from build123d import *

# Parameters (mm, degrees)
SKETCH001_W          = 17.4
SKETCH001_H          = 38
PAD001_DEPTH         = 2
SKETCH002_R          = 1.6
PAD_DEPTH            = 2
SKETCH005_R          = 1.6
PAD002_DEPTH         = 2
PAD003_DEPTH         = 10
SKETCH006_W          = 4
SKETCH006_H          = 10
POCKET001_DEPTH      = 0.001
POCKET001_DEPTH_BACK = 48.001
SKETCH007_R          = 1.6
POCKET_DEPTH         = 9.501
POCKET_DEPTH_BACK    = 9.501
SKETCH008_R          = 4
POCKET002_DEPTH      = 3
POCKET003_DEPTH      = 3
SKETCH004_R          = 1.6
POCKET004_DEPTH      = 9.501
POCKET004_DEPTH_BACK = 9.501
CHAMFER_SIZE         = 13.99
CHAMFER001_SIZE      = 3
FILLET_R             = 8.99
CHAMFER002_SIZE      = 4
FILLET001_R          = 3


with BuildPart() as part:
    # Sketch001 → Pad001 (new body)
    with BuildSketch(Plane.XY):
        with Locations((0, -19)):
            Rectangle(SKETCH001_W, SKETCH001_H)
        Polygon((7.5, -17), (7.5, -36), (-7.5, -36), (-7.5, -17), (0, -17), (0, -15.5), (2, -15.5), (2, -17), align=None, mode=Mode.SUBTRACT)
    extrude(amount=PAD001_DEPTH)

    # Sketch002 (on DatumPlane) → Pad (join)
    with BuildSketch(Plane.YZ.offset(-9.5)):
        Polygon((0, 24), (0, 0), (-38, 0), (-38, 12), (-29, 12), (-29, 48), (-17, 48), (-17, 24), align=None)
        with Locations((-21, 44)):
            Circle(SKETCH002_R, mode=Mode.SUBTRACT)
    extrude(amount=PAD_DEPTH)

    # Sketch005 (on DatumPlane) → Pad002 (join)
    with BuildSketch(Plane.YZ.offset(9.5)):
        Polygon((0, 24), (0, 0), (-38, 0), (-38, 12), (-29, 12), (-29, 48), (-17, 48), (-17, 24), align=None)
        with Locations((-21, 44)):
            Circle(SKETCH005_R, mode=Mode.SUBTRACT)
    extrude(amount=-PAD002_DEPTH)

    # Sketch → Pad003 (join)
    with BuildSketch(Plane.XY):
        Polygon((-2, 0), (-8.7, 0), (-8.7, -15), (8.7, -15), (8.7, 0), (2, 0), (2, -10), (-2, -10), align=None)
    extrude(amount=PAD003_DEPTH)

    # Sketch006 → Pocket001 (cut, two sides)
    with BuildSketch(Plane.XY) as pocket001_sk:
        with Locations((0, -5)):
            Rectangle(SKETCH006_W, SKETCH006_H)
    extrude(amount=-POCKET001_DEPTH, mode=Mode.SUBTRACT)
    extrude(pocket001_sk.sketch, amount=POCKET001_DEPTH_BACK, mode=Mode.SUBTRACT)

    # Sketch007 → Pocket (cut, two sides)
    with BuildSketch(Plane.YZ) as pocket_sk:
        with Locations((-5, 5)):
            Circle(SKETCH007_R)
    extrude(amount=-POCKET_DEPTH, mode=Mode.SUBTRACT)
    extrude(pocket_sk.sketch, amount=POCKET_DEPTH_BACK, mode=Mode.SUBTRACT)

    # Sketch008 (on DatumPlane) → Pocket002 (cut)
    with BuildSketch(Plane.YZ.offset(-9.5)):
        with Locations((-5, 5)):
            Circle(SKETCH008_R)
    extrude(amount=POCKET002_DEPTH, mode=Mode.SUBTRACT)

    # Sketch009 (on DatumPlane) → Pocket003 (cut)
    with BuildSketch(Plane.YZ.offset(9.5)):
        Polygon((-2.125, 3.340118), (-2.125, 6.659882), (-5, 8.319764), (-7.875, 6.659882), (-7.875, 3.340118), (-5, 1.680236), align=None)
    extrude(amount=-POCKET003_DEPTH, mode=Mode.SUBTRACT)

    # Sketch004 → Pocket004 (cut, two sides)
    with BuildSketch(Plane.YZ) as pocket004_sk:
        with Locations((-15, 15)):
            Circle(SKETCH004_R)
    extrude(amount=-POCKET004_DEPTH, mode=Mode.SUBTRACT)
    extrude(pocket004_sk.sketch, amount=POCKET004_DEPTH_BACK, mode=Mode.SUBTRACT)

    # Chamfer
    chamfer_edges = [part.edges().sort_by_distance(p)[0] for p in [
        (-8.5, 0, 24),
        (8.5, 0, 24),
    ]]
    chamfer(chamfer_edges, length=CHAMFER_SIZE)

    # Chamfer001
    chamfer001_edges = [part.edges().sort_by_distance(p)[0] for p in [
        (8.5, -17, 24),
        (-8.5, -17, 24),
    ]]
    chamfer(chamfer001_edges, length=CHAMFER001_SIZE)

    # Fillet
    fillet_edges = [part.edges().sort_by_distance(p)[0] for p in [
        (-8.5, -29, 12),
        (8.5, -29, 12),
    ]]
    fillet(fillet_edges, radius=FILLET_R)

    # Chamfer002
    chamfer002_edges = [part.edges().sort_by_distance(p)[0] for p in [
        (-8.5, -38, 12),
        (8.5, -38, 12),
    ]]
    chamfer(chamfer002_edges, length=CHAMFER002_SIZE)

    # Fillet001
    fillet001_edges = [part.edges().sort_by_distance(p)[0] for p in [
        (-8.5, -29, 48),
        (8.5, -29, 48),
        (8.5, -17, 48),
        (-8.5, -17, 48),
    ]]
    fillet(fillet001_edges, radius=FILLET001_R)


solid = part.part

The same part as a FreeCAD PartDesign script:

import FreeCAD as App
import Part
import Sketcher

V = App.Vector
Q = App.Units.Quantity


def edges_at(feature, points):
    """Names of the edges that pass closest to the given points."""
    edges = feature.Shape.Edges
    near = lambda p: min(range(len(edges)), key=lambda i: edges[i].distToShape(Part.Vertex(*p))[0])
    return sorted({f"Edge{near(p) + 1}" for p in points})

doc = App.newDocument("Part")
body = doc.addObject("PartDesign::Body", "Body")

sketch1 = doc.addObject("Sketcher::SketchObject", "Sketch")
body.addObject(sketch1)
sketch1.AttachmentSupport = (doc.XY_Plane, [""])
sketch1.MapMode = "FlatFace"
sketch1.addGeometry([
    Part.LineSegment(V(-8.7, 0, 0), V(-8.7, -38, 0)),
    Part.LineSegment(V(-8.7, -38, 0), V(8.7, -38, 0)),
    Part.LineSegment(V(8.7, -38, 0), V(8.7, 0, 0)),
    Part.LineSegment(V(8.7, 0, 0), V(-8.7, 0, 0)),
    Part.LineSegment(V(2, -17, 0), V(7.5, -17, 0)),
    Part.LineSegment(V(7.5, -17, 0), V(7.5, -36, 0)),
    Part.LineSegment(V(7.5, -36, 0), V(-7.5, -36, 0)),
    Part.LineSegment(V(-7.5, -36, 0), V(-7.5, -17, 0)),
    Part.LineSegment(V(-7.5, -17, 0), V(0, -17, 0)),
    Part.LineSegment(V(0, -17, 0), V(0, -15.5, 0)),
    Part.LineSegment(V(0, -15.5, 0), V(2, -15.5, 0)),
    Part.LineSegment(V(2, -15.5, 0), V(2, -17, 0)),
], False)
sketch1.addConstraint([
    Sketcher.Constraint("Coincident", 0, 2, 1, 1),
    Sketcher.Constraint("Coincident", 1, 2, 2, 1),
    Sketcher.Constraint("Coincident", 2, 2, 3, 1),
    Sketcher.Constraint("Coincident", 3, 2, 0, 1),
    Sketcher.Constraint("Coincident", 4, 2, 5, 1),
    Sketcher.Constraint("Coincident", 5, 2, 6, 1),
    Sketcher.Constraint("Coincident", 6, 2, 7, 1),
    Sketcher.Constraint("Coincident", 7, 2, 8, 1),
    Sketcher.Constraint("Coincident", 8, 2, 9, 1),
    Sketcher.Constraint("Coincident", 9, 2, 10, 1),
    Sketcher.Constraint("Coincident", 10, 2, 11, 1),
    Sketcher.Constraint("Coincident", 11, 2, 4, 1),
    Sketcher.Constraint("Vertical", 0),
    Sketcher.Constraint("Horizontal", 1),
    Sketcher.Constraint("Vertical", 2),
    Sketcher.Constraint("Horizontal", 3),
    Sketcher.Constraint("Horizontal", 4),
    Sketcher.Constraint("Vertical", 5),
    Sketcher.Constraint("Horizontal", 6),
    Sketcher.Constraint("Vertical", 7),
    Sketcher.Constraint("Horizontal", 8),
    Sketcher.Constraint("Vertical", 9),
    Sketcher.Constraint("Horizontal", 10),
    Sketcher.Constraint("Vertical", 11),
    Sketcher.Constraint("Symmetric", 2, 2, 3, 2, -1, 1),
    Sketcher.Constraint("Symmetric", 4, 2, 7, 2, -2),
    Sketcher.Constraint("PointOnObject", 8, 2, -2),
    Sketcher.Constraint("DistanceX", 6, 2, 6, 1, Q("15 mm")),
    Sketcher.Constraint("DistanceX", 10, 1, 10, 2, Q("2 mm")),
    Sketcher.Constraint("DistanceY", 0, 2, 0, 1, Q("38 mm")),
    Sketcher.Constraint("DistanceY", 5, 2, 5, 1, Q("19 mm")),
    Sketcher.Constraint("DistanceX", 1, 1, 1, 2, Q("17.4 mm")),
    Sketcher.Constraint("DistanceY", 9, 1, 9, 2, Q("1.5 mm")),
    Sketcher.Constraint("DistanceY", 4, 2, -1, 1, Q("17 mm")),
])
pad1 = doc.addObject("PartDesign::Pad", "Pad")
body.addObject(pad1)
pad1.Profile = sketch1
pad1.Length = 2

sketch2 = doc.addObject("Sketcher::SketchObject", "Sketch001")
body.addObject(sketch2)
sketch2.AttachmentSupport = (doc.YZ_Plane, [""])
sketch2.MapMode = "FlatFace"
sketch2.AttachmentOffset = App.Placement(V(0, 0, -9.5), App.Rotation())
sketch2.addGeometry([
    Part.LineSegment(V(0, 0, 0), V(0, 24, 0)),
    Part.LineSegment(V(0, 24, 0), V(-17, 24, 0)),
    Part.LineSegment(V(-17, 24, 0), V(-17, 48, 0)),
    Part.LineSegment(V(-17, 48, 0), V(-29, 48, 0)),
    Part.LineSegment(V(-29, 48, 0), V(-29, 12, 0)),
    Part.LineSegment(V(-29, 12, 0), V(-38, 12, 0)),
    Part.LineSegment(V(-38, 12, 0), V(-38, 0, 0)),
    Part.LineSegment(V(-38, 0, 0), V(0, 0, 0)),
    Part.Circle(V(-21, 44, 0), V(0, 0, 1), 1.6),
], False)
sketch2.addConstraint([
    Sketcher.Constraint("Coincident", 0, 2, 1, 1),
    Sketcher.Constraint("Coincident", 1, 2, 2, 1),
    Sketcher.Constraint("Coincident", 2, 2, 3, 1),
    Sketcher.Constraint("Coincident", 3, 2, 4, 1),
    Sketcher.Constraint("Coincident", 4, 2, 5, 1),
    Sketcher.Constraint("Coincident", 5, 2, 6, 1),
    Sketcher.Constraint("Coincident", 6, 2, 7, 1),
    Sketcher.Constraint("Coincident", 7, 2, 0, 1),
    Sketcher.Constraint("Vertical", 0),
    Sketcher.Constraint("Horizontal", 1),
    Sketcher.Constraint("Vertical", 2),
    Sketcher.Constraint("Horizontal", 3),
    Sketcher.Constraint("Vertical", 4),
    Sketcher.Constraint("Horizontal", 5),
    Sketcher.Constraint("Vertical", 6),
    Sketcher.Constraint("Horizontal", 7),
    Sketcher.Constraint("Coincident", 7, 2, -1, 1),
    Sketcher.Constraint("Equal", 0, 2),
    Sketcher.Constraint("Equal", 3, 6),
    Sketcher.Constraint("Diameter", 8, Q("3.2 mm")),
    Sketcher.Constraint("DistanceX", 1, 2, 1, 1, Q("17 mm")),
    Sketcher.Constraint("DistanceX", 3, 2, 3, 1, Q("12 mm")),
    Sketcher.Constraint("DistanceX", 5, 2, 5, 1, Q("9 mm")),
    Sketcher.Constraint("DistanceY", 0, 1, 0, 2, Q("24 mm")),
    Sketcher.Constraint("DistanceX", 8, 3, -1, 1, Q("21 mm")),
    Sketcher.Constraint("DistanceY", -1, 1, 8, 3, Q("44 mm")),
])
pad2 = doc.addObject("PartDesign::Pad", "Pad001")
body.addObject(pad2)
pad2.Profile = sketch2
pad2.Length = 2

sketch3 = doc.addObject("Sketcher::SketchObject", "Sketch002")
body.addObject(sketch3)
sketch3.AttachmentSupport = (doc.YZ_Plane, [""])
sketch3.MapMode = "FlatFace"
sketch3.AttachmentOffset = App.Placement(V(0, 0, 9.5), App.Rotation())
sketch3.addGeometry([
    Part.LineSegment(V(0, 0, 0), V(0, 24, 0)),
    Part.LineSegment(V(0, 24, 0), V(-17, 24, 0)),
    Part.LineSegment(V(-17, 24, 0), V(-17, 48, 0)),
    Part.LineSegment(V(-17, 48, 0), V(-29, 48, 0)),
    Part.LineSegment(V(-29, 48, 0), V(-29, 12, 0)),
    Part.LineSegment(V(-29, 12, 0), V(-38, 12, 0)),
    Part.LineSegment(V(-38, 12, 0), V(-38, 0, 0)),
    Part.LineSegment(V(-38, 0, 0), V(0, 0, 0)),
    Part.Circle(V(-21, 44, 0), V(0, 0, 1), 1.6),
], False)
sketch3.addConstraint([
    Sketcher.Constraint("Coincident", 0, 2, 1, 1),
    Sketcher.Constraint("Coincident", 1, 2, 2, 1),
    Sketcher.Constraint("Coincident", 2, 2, 3, 1),
    Sketcher.Constraint("Coincident", 3, 2, 4, 1),
    Sketcher.Constraint("Coincident", 4, 2, 5, 1),
    Sketcher.Constraint("Coincident", 5, 2, 6, 1),
    Sketcher.Constraint("Coincident", 6, 2, 7, 1),
    Sketcher.Constraint("Coincident", 7, 2, 0, 1),
    Sketcher.Constraint("Vertical", 0),
    Sketcher.Constraint("Horizontal", 1),
    Sketcher.Constraint("Vertical", 2),
    Sketcher.Constraint("Horizontal", 3),
    Sketcher.Constraint("Vertical", 4),
    Sketcher.Constraint("Horizontal", 5),
    Sketcher.Constraint("Vertical", 6),
    Sketcher.Constraint("Horizontal", 7),
    Sketcher.Constraint("Coincident", 7, 2, -1, 1),
    Sketcher.Constraint("Equal", 0, 2),
    Sketcher.Constraint("Equal", 3, 6),
    Sketcher.Constraint("Diameter", 8, Q("3.2 mm")),
    Sketcher.Constraint("DistanceX", 1, 2, 1, 1, Q("17 mm")),
    Sketcher.Constraint("DistanceX", 3, 2, 3, 1, Q("12 mm")),
    Sketcher.Constraint("DistanceX", 5, 2, 5, 1, Q("9 mm")),
    Sketcher.Constraint("DistanceY", 0, 1, 0, 2, Q("24 mm")),
    Sketcher.Constraint("DistanceX", 8, 3, -1, 1, Q("21 mm")),
    Sketcher.Constraint("DistanceY", -1, 1, 8, 3, Q("44 mm")),
])
pad3 = doc.addObject("PartDesign::Pad", "Pad002")
body.addObject(pad3)
pad3.Profile = sketch3
pad3.Length = 2
pad3.Reversed = True

sketch4 = doc.addObject("Sketcher::SketchObject", "Sketch003")
body.addObject(sketch4)
sketch4.AttachmentSupport = (doc.XY_Plane, [""])
sketch4.MapMode = "FlatFace"
sketch4.addGeometry([
    Part.LineSegment(V(-2, 0, 0), V(-8.7, 0, 0)),
    Part.LineSegment(V(-8.7, 0, 0), V(-8.7, -15, 0)),
    Part.LineSegment(V(-8.7, -15, 0), V(8.7, -15, 0)),
    Part.LineSegment(V(8.7, -15, 0), V(8.7, 0, 0)),
    Part.LineSegment(V(8.7, 0, 0), V(2, 0, 0)),
    Part.LineSegment(V(2, 0, 0), V(2, -10, 0)),
    Part.LineSegment(V(2, -10, 0), V(-2, -10, 0)),
    Part.LineSegment(V(-2, -10, 0), V(-2, 0, 0)),
], False)
sketch4.addConstraint([
    Sketcher.Constraint("Coincident", 0, 2, 1, 1),
    Sketcher.Constraint("Coincident", 1, 2, 2, 1),
    Sketcher.Constraint("Coincident", 2, 2, 3, 1),
    Sketcher.Constraint("Coincident", 3, 2, 4, 1),
    Sketcher.Constraint("Coincident", 4, 2, 5, 1),
    Sketcher.Constraint("Coincident", 5, 2, 6, 1),
    Sketcher.Constraint("Coincident", 6, 2, 7, 1),
    Sketcher.Constraint("Coincident", 7, 2, 0, 1),
    Sketcher.Constraint("Horizontal", 0),
    Sketcher.Constraint("Vertical", 1),
    Sketcher.Constraint("Horizontal", 2),
    Sketcher.Constraint("Vertical", 3),
    Sketcher.Constraint("Horizontal", 4),
    Sketcher.Constraint("Vertical", 5),
    Sketcher.Constraint("Horizontal", 6),
    Sketcher.Constraint("Vertical", 7),
    Sketcher.Constraint("Symmetric", 0, 2, 3, 2, -1, 1),
    Sketcher.Constraint("Symmetric", 4, 2, 7, 2, -2),
    Sketcher.Constraint("DistanceX", 6, 2, 6, 1, Q("4 mm")),
    Sketcher.Constraint("DistanceY", 1, 2, 1, 1, Q("15 mm")),
    Sketcher.Constraint("DistanceY", 5, 2, 5, 1, Q("10 mm")),
    Sketcher.Constraint("DistanceX", 0, 2, 0, 1, Q("6.7 mm")),
])
pad4 = doc.addObject("PartDesign::Pad", "Pad003")
body.addObject(pad4)
pad4.Profile = sketch4
pad4.Length = 10

sketch5 = doc.addObject("Sketcher::SketchObject", "Sketch004")
body.addObject(sketch5)
sketch5.AttachmentSupport = (doc.XY_Plane, [""])
sketch5.MapMode = "FlatFace"
sketch5.addGeometry([
    Part.LineSegment(V(-2, 0, 0), V(-2, -10, 0)),
    Part.LineSegment(V(-2, -10, 0), V(2, -10, 0)),
    Part.LineSegment(V(2, -10, 0), V(2, 0, 0)),
    Part.LineSegment(V(2, 0, 0), V(-2, 0, 0)),
], False)
sketch5.addConstraint([
    Sketcher.Constraint("Coincident", 0, 2, 1, 1),
    Sketcher.Constraint("Coincident", 1, 2, 2, 1),
    Sketcher.Constraint("Coincident", 2, 2, 3, 1),
    Sketcher.Constraint("Coincident", 3, 2, 0, 1),
    Sketcher.Constraint("Vertical", 0),
    Sketcher.Constraint("Horizontal", 1),
    Sketcher.Constraint("Vertical", 2),
    Sketcher.Constraint("Horizontal", 3),
    Sketcher.Constraint("Symmetric", 2, 2, 3, 2, -1, 1),
    Sketcher.Constraint("DistanceX", 1, 1, 1, 2, Q("4 mm")),
    Sketcher.Constraint("DistanceY", 0, 2, 0, 1, Q("10 mm")),
])
pocket1 = doc.addObject("PartDesign::Pocket", "Pocket")
body.addObject(pocket1)
pocket1.Profile = sketch5
pocket1.Type = "ThroughAll"
pocket1.Midplane = True

sketch6 = doc.addObject("Sketcher::SketchObject", "Sketch005")
body.addObject(sketch6)
sketch6.AttachmentSupport = (doc.YZ_Plane, [""])
sketch6.MapMode = "FlatFace"
sketch6.addGeometry(Part.Circle(V(-5, 5, 0), V(0, 0, 1), 1.6), False)
sketch6.addConstraint([
    Sketcher.Constraint("Diameter", 0, Q("3.2 mm")),
    Sketcher.Constraint("DistanceX", 0, 3, -1, 1, Q("5 mm")),
    Sketcher.Constraint("DistanceY", -1, 1, 0, 3, Q("5 mm")),
])
pocket2 = doc.addObject("PartDesign::Pocket", "Pocket001")
body.addObject(pocket2)
pocket2.Profile = sketch6
pocket2.Type = "ThroughAll"
pocket2.Midplane = True

sketch7 = doc.addObject("Sketcher::SketchObject", "Sketch006")
body.addObject(sketch7)
sketch7.AttachmentSupport = (doc.YZ_Plane, [""])
sketch7.MapMode = "FlatFace"
sketch7.AttachmentOffset = App.Placement(V(0, 0, -9.5), App.Rotation())
sketch7.addGeometry(Part.Circle(V(-5, 5, 0), V(0, 0, 1), 4), False)
sketch7.addConstraint([
    Sketcher.Constraint("Diameter", 0, Q("8 mm")),
    Sketcher.Constraint("DistanceX", 0, 3, -1, 1, Q("5 mm")),
    Sketcher.Constraint("DistanceY", -1, 1, 0, 3, Q("5 mm")),
])
pocket3 = doc.addObject("PartDesign::Pocket", "Pocket002")
body.addObject(pocket3)
pocket3.Profile = sketch7
pocket3.Length = 3
pocket3.Reversed = True

sketch8 = doc.addObject("Sketcher::SketchObject", "Sketch007")
body.addObject(sketch8)
sketch8.AttachmentSupport = (doc.YZ_Plane, [""])
sketch8.MapMode = "FlatFace"
sketch8.AttachmentOffset = App.Placement(V(0, 0, 9.5), App.Rotation())
sketch8.addGeometry([
    Part.LineSegment(V(-2.1, 3.3, 0), V(-2.1, 6.7, 0)),
    Part.LineSegment(V(-2.1, 6.7, 0), V(-5, 8.3, 0)),
    Part.LineSegment(V(-5, 8.3, 0), V(-7.9, 6.7, 0)),
    Part.LineSegment(V(-7.9, 6.7, 0), V(-7.9, 3.3, 0)),
    Part.LineSegment(V(-7.9, 3.3, 0), V(-5, 1.7, 0)),
    Part.LineSegment(V(-5, 1.7, 0), V(-2.1, 3.3, 0)),
], False)
sketch8.addConstraint([
    Sketcher.Constraint("Coincident", 0, 2, 1, 1),
    Sketcher.Constraint("Coincident", 1, 2, 2, 1),
    Sketcher.Constraint("Coincident", 2, 2, 3, 1),
    Sketcher.Constraint("Coincident", 3, 2, 4, 1),
    Sketcher.Constraint("Coincident", 4, 2, 5, 1),
    Sketcher.Constraint("Coincident", 5, 2, 0, 1),
    Sketcher.Constraint("Vertical", 0),
    Sketcher.Constraint("Vertical", 3),
    Sketcher.Constraint("Parallel", 1, 4),
    Sketcher.Constraint("Parallel", 2, 5),
    Sketcher.Constraint("Horizontal", 0, 2, 2, 2),
    Sketcher.Constraint("Horizontal", 3, 2, 5, 2),
    Sketcher.Constraint("Vertical", 1, 2, 4, 2),
    Sketcher.Constraint("Angle", 1, Q("150 deg")),
    Sketcher.Constraint("DistanceX", 1, 2, -1, 1, Q("5 mm")),
    Sketcher.Constraint("DistanceX", 2, 2, 0, 2, Q("5.75 mm")),
    Sketcher.Constraint("DistanceY", 0, 1, 0, 2, Q("3.319764 mm")),
    Sketcher.Constraint("DistanceY", -1, 1, 0, 2, Q("6.659882 mm")),
])
pocket4 = doc.addObject("PartDesign::Pocket", "Pocket003")
body.addObject(pocket4)
pocket4.Profile = sketch8
pocket4.Length = 3

sketch9 = doc.addObject("Sketcher::SketchObject", "Sketch008")
body.addObject(sketch9)
sketch9.AttachmentSupport = (doc.YZ_Plane, [""])
sketch9.MapMode = "FlatFace"
sketch9.addGeometry(Part.Circle(V(-15, 15, 0), V(0, 0, 1), 1.6), False)
sketch9.addConstraint([
    Sketcher.Constraint("Diameter", 0, Q("3.2 mm")),
    Sketcher.Constraint("DistanceX", 0, 3, -1, 1, Q("15 mm")),
    Sketcher.Constraint("DistanceY", -1, 1, 0, 3, Q("15 mm")),
])
pocket5 = doc.addObject("PartDesign::Pocket", "Pocket004")
body.addObject(pocket5)
pocket5.Profile = sketch9
pocket5.Type = "ThroughAll"
pocket5.Midplane = True
doc.recompute()

chamfer = doc.addObject("PartDesign::Chamfer", "Chamfer")
body.addObject(chamfer)
chamfer.Base = (pocket5, edges_at(pocket5, [(-8.5, 0, 24), (8.5, 0, 24)]))
chamfer.Size = 13.99
doc.recompute()

chamfer2 = doc.addObject("PartDesign::Chamfer", "Chamfer001")
body.addObject(chamfer2)
chamfer2.Base = (chamfer, edges_at(chamfer, [(8.5, -17, 24), (-8.5, -17, 24)]))
chamfer2.Size = 3
doc.recompute()

fillet = doc.addObject("PartDesign::Fillet", "Fillet")
body.addObject(fillet)
fillet.Base = (chamfer2, edges_at(chamfer2, [(-8.5, -29, 12), (8.5, -29, 12)]))
fillet.Radius = 8.99
doc.recompute()

chamfer3 = doc.addObject("PartDesign::Chamfer", "Chamfer002")
body.addObject(chamfer3)
chamfer3.Base = (fillet, edges_at(fillet, [(-8.5, -38, 12), (8.5, -38, 12)]))
chamfer3.Size = 4
doc.recompute()

fillet2 = doc.addObject("PartDesign::Fillet", "Fillet001")
body.addObject(fillet2)
fillet2.Base = (chamfer3, edges_at(chamfer3, [
    (-8.5, -29, 48),
    (8.5, -29, 48),
    (8.5, -17, 48),
    (-8.5, -17, 48),
]))
fillet2.Radius = 3

doc.recompute()
